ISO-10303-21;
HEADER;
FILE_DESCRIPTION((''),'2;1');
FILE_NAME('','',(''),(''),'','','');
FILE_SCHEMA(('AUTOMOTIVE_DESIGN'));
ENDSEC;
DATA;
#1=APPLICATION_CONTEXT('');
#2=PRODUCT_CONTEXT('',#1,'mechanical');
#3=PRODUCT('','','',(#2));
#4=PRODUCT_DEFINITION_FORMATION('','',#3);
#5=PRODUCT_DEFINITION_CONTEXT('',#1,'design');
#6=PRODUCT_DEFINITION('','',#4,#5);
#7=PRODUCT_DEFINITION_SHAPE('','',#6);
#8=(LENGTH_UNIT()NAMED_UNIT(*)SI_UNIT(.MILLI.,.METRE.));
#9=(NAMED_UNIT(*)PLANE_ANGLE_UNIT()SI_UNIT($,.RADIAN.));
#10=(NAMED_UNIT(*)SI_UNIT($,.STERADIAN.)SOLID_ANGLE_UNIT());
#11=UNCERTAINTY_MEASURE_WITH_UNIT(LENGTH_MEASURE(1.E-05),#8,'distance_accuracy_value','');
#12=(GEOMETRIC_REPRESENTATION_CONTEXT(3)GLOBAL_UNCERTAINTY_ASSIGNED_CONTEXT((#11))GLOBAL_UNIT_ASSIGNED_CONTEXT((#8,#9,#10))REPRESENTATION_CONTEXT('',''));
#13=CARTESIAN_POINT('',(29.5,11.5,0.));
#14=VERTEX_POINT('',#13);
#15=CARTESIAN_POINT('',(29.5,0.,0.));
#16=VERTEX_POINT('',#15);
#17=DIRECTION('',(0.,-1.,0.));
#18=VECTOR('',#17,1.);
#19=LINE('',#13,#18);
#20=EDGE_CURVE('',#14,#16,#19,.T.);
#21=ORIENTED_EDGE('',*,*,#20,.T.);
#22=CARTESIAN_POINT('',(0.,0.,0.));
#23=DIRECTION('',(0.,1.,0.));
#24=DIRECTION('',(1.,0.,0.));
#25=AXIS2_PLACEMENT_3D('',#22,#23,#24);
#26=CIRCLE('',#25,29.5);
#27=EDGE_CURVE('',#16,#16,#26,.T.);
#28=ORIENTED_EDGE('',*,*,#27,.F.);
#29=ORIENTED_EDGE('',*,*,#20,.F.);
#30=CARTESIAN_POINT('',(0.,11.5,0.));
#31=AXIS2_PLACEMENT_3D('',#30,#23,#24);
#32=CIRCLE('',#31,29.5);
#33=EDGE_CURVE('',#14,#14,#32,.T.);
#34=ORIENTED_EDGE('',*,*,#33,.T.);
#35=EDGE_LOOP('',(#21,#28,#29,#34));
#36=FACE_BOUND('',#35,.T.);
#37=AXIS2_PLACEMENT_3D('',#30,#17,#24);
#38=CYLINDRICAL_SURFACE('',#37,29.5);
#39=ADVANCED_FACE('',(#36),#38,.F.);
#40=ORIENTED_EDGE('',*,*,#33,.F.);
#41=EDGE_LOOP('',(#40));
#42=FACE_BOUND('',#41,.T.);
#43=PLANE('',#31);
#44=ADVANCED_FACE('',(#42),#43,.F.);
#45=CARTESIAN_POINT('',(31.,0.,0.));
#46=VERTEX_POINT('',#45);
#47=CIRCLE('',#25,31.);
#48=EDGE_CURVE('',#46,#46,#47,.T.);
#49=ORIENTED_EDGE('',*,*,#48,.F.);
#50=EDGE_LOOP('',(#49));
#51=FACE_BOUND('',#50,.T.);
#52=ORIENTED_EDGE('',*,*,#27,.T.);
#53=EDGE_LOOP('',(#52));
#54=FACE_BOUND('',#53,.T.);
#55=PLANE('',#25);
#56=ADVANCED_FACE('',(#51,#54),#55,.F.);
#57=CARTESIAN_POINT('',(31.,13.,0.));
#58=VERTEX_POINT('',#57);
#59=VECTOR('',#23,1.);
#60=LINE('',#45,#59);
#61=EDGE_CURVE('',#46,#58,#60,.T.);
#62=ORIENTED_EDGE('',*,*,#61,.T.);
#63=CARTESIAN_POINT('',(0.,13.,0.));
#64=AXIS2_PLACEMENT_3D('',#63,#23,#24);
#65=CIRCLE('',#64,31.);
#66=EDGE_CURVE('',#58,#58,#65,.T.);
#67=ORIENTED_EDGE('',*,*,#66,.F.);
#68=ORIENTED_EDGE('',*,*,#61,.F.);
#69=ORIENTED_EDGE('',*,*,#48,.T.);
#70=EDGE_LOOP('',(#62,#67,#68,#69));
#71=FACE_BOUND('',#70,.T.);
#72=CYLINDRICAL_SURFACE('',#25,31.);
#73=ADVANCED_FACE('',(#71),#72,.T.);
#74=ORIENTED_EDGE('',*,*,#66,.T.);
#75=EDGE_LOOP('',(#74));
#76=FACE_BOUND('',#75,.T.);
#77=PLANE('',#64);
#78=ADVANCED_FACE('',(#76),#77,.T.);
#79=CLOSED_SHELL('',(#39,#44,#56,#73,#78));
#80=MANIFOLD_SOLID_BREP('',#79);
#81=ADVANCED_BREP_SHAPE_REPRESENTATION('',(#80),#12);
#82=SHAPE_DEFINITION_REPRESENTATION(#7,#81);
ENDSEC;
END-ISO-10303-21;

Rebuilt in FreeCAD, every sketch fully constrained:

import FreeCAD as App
import Part
import Sketcher
from FreeCAD import Vector
Q = App.Units.Quantity

doc = App.newDocument("Part")
body = doc.addObject("PartDesign::Body", "Body")

sketch1 = body.newObject("Sketcher::SketchObject", "Sketch")
sketch1.AttachmentSupport = (doc.getObject("XY_Plane"), [""])
sketch1.MapMode = "FlatFace"
sketch1.addGeometry([
    Part.LineSegment(Vector(29.5, 0, 0), Vector(31, 0, 0)),
    Part.LineSegment(Vector(31, 0, 0), Vector(31, 13, 0)),
    Part.LineSegment(Vector(31, 13, 0), Vector(0, 13, 0)),
    Part.LineSegment(Vector(0, 13, 0), Vector(0, 11.5, 0)),
    Part.LineSegment(Vector(0, 11.5, 0), Vector(29.5, 11.5, 0)),
    Part.LineSegment(Vector(29.5, 11.5, 0), Vector(29.5, 0, 0)),
], False)
sketch1.addConstraint([
    Sketcher.Constraint("Coincident", 0, 2, 1, 1),
    Sketcher.Constraint("Coincident", 1, 2, 2, 1),
    Sketcher.Constraint("Coincident", 2, 2, 3, 1),
    Sketcher.Constraint("Coincident", 3, 2, 4, 1),
    Sketcher.Constraint("Coincident", 4, 2, 5, 1),
    Sketcher.Constraint("Coincident", 5, 2, 0, 1),
    Sketcher.Constraint("Horizontal", 0),
    Sketcher.Constraint("Vertical", 1),
    Sketcher.Constraint("Horizontal", 2),
    Sketcher.Constraint("Vertical", 3),
    Sketcher.Constraint("Horizontal", 4),
    Sketcher.Constraint("Vertical", 5),
    Sketcher.Constraint("PointOnObject", 0, 2, -1),
    Sketcher.Constraint("PointOnObject", 2, 2, -2),
    Sketcher.Constraint("Equal", 0, 3),
    Sketcher.Constraint("DistanceX", 2, 2, 2, 1, Q("31 mm")),
    Sketcher.Constraint("DistanceY", 1, 1, 1, 2, Q("13 mm")),
    Sketcher.Constraint("DistanceX", 0, 1, 0, 2, Q("1.5 mm")),
])
revolution = body.newObject("PartDesign::Revolution", "Revolution")
revolution.Profile = sketch1
revolution.ReferenceAxis = (sketch1, ["V_Axis"])
revolution.Angle = 360

doc.recompute()
